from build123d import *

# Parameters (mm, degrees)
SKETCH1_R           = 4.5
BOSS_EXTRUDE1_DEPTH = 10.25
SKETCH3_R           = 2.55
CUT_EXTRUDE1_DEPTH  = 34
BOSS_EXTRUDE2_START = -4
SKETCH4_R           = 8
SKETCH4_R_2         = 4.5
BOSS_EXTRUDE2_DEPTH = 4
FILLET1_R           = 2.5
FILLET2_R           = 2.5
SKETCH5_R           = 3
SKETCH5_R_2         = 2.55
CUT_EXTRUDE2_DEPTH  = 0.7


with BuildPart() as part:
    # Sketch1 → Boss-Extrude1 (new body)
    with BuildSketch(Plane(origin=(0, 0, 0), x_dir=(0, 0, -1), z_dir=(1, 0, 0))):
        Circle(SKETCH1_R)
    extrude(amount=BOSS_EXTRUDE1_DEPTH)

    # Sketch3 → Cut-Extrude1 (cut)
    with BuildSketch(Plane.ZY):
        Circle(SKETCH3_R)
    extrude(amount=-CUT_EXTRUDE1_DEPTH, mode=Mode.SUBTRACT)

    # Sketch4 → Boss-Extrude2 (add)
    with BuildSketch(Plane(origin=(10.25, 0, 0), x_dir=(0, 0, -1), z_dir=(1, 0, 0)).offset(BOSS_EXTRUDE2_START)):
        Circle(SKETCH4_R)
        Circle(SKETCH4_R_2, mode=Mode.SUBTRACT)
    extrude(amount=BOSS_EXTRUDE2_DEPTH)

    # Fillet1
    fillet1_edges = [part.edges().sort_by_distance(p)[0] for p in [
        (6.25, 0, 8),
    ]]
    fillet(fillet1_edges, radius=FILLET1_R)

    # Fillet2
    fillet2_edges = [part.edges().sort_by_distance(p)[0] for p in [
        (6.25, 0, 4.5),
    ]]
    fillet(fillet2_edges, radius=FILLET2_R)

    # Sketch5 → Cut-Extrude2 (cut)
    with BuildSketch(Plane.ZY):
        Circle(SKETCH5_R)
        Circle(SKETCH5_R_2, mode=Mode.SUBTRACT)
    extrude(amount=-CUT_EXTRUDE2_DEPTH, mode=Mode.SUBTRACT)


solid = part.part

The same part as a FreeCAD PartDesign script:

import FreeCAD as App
import Part
import Sketcher

V = App.Vector
Q = App.Units.Quantity


def edges_at(feature, points):
    """Names of the edges that pass closest to the given points."""
    edges = feature.Shape.Edges
    near = lambda p: min(range(len(edges)), key=lambda i: edges[i].distToShape(Part.Vertex(*p))[0])
    return sorted({f"Edge{near(p) + 1}" for p in points})

doc = App.newDocument("Part")
body = doc.addObject("PartDesign::Body", "Body")

# Sketch on YZ plane
sketch1 = body.newObject("Sketcher::SketchObject", "Sketch")
sketch1.AttachmentSupport = (doc.getObject("YZ_Plane"), [""])
sketch1.MapMode = "FlatFace"
sketch1.addGeometry(Part.Circle(V(0, 0, 0), V(0, 0, 1), 4.5), False)
sketch1.addConstraint([
    Sketcher.Constraint("Coincident", 0, 3, -1, 1),
    Sketcher.Constraint("Diameter", 0, Q("9 mm")),
])
pad1 = body.newObject("PartDesign::Pad", "Pad")
pad1.Profile = sketch1
pad1.Length = 10.25

# Sketch on YZ plane
sketch2 = body.newObject("Sketcher::SketchObject", "Sketch001")
sketch2.AttachmentSupport = (doc.getObject("YZ_Plane"), [""])
sketch2.MapMode = "FlatFace"
sketch2.addGeometry(Part.Circle(V(0, 0, 0), V(0, 0, 1), 2.55), False)
sketch2.addConstraint([
    Sketcher.Constraint("Coincident", 0, 3, -1, 1),
    Sketcher.Constraint("Diameter", 0, Q("5.1 mm")),
])
pocket1 = body.newObject("PartDesign::Pocket", "Pocket")
pocket1.Profile = sketch2
pocket1.Length = 34
pocket1.Reversed = True

# Sketch on YZ plane
sketch3 = body.newObject("Sketcher::SketchObject", "Sketch002")
sketch3.AttachmentSupport = (doc.getObject("YZ_Plane"), [""])
sketch3.MapMode = "FlatFace"
sketch3.AttachmentOffset = App.Placement(V(0, 0, 6.25), App.Rotation())
sketch3.addGeometry([
    Part.Circle(V(0, 0, 0), V(0, 0, 1), 8),
    Part.Circle(V(0, 0, 0), V(0, 0, 1), 4.5),
], False)
sketch3.addConstraint([
    Sketcher.Constraint("Coincident", 0, 3, -1, 1),
    Sketcher.Constraint("Coincident", 1, 3, -1, 1),
    Sketcher.Constraint("Diameter", 0, Q("16 mm")),
    Sketcher.Constraint("Diameter", 1, Q("9 mm")),
])
pad2 = body.newObject("PartDesign::Pad", "Pad001")
pad2.Profile = sketch3
pad2.Length = 4
doc.recompute()

fillet = body.newObject("PartDesign::Fillet", "Fillet")
fillet.Base = (pad2, edges_at(pad2, [(6.25, 0, 8)]))
fillet.Radius = 2.5
doc.recompute()

fillet2 = body.newObject("PartDesign::Fillet", "Fillet001")
fillet2.Base = (fillet, edges_at(fillet, [(6.25, 0, 4.5)]))
fillet2.Radius = 2.5

# Sketch on YZ plane
sketch4 = body.newObject("Sketcher::SketchObject", "Sketch003")
sketch4.AttachmentSupport = (doc.getObject("YZ_Plane"), [""])
sketch4.MapMode = "FlatFace"
sketch4.addGeometry([
    Part.Circle(V(0, 0, 0), V(0, 0, 1), 3),
    Part.Circle(V(0, 0, 0), V(0, 0, 1), 2.55),
], False)
sketch4.addConstraint([
    Sketcher.Constraint("Coincident", 0, 3, -1, 1),
    Sketcher.Constraint("Coincident", 1, 3, -1, 1),
    Sketcher.Constraint("Diameter", 0, Q("6 mm")),
    Sketcher.Constraint("Diameter", 1, Q("5.1 mm")),
])
pocket2 = body.newObject("PartDesign::Pocket", "Pocket001")
pocket2.Profile = sketch4
pocket2.Length = 0.7
pocket2.Reversed = True

doc.recompute()
